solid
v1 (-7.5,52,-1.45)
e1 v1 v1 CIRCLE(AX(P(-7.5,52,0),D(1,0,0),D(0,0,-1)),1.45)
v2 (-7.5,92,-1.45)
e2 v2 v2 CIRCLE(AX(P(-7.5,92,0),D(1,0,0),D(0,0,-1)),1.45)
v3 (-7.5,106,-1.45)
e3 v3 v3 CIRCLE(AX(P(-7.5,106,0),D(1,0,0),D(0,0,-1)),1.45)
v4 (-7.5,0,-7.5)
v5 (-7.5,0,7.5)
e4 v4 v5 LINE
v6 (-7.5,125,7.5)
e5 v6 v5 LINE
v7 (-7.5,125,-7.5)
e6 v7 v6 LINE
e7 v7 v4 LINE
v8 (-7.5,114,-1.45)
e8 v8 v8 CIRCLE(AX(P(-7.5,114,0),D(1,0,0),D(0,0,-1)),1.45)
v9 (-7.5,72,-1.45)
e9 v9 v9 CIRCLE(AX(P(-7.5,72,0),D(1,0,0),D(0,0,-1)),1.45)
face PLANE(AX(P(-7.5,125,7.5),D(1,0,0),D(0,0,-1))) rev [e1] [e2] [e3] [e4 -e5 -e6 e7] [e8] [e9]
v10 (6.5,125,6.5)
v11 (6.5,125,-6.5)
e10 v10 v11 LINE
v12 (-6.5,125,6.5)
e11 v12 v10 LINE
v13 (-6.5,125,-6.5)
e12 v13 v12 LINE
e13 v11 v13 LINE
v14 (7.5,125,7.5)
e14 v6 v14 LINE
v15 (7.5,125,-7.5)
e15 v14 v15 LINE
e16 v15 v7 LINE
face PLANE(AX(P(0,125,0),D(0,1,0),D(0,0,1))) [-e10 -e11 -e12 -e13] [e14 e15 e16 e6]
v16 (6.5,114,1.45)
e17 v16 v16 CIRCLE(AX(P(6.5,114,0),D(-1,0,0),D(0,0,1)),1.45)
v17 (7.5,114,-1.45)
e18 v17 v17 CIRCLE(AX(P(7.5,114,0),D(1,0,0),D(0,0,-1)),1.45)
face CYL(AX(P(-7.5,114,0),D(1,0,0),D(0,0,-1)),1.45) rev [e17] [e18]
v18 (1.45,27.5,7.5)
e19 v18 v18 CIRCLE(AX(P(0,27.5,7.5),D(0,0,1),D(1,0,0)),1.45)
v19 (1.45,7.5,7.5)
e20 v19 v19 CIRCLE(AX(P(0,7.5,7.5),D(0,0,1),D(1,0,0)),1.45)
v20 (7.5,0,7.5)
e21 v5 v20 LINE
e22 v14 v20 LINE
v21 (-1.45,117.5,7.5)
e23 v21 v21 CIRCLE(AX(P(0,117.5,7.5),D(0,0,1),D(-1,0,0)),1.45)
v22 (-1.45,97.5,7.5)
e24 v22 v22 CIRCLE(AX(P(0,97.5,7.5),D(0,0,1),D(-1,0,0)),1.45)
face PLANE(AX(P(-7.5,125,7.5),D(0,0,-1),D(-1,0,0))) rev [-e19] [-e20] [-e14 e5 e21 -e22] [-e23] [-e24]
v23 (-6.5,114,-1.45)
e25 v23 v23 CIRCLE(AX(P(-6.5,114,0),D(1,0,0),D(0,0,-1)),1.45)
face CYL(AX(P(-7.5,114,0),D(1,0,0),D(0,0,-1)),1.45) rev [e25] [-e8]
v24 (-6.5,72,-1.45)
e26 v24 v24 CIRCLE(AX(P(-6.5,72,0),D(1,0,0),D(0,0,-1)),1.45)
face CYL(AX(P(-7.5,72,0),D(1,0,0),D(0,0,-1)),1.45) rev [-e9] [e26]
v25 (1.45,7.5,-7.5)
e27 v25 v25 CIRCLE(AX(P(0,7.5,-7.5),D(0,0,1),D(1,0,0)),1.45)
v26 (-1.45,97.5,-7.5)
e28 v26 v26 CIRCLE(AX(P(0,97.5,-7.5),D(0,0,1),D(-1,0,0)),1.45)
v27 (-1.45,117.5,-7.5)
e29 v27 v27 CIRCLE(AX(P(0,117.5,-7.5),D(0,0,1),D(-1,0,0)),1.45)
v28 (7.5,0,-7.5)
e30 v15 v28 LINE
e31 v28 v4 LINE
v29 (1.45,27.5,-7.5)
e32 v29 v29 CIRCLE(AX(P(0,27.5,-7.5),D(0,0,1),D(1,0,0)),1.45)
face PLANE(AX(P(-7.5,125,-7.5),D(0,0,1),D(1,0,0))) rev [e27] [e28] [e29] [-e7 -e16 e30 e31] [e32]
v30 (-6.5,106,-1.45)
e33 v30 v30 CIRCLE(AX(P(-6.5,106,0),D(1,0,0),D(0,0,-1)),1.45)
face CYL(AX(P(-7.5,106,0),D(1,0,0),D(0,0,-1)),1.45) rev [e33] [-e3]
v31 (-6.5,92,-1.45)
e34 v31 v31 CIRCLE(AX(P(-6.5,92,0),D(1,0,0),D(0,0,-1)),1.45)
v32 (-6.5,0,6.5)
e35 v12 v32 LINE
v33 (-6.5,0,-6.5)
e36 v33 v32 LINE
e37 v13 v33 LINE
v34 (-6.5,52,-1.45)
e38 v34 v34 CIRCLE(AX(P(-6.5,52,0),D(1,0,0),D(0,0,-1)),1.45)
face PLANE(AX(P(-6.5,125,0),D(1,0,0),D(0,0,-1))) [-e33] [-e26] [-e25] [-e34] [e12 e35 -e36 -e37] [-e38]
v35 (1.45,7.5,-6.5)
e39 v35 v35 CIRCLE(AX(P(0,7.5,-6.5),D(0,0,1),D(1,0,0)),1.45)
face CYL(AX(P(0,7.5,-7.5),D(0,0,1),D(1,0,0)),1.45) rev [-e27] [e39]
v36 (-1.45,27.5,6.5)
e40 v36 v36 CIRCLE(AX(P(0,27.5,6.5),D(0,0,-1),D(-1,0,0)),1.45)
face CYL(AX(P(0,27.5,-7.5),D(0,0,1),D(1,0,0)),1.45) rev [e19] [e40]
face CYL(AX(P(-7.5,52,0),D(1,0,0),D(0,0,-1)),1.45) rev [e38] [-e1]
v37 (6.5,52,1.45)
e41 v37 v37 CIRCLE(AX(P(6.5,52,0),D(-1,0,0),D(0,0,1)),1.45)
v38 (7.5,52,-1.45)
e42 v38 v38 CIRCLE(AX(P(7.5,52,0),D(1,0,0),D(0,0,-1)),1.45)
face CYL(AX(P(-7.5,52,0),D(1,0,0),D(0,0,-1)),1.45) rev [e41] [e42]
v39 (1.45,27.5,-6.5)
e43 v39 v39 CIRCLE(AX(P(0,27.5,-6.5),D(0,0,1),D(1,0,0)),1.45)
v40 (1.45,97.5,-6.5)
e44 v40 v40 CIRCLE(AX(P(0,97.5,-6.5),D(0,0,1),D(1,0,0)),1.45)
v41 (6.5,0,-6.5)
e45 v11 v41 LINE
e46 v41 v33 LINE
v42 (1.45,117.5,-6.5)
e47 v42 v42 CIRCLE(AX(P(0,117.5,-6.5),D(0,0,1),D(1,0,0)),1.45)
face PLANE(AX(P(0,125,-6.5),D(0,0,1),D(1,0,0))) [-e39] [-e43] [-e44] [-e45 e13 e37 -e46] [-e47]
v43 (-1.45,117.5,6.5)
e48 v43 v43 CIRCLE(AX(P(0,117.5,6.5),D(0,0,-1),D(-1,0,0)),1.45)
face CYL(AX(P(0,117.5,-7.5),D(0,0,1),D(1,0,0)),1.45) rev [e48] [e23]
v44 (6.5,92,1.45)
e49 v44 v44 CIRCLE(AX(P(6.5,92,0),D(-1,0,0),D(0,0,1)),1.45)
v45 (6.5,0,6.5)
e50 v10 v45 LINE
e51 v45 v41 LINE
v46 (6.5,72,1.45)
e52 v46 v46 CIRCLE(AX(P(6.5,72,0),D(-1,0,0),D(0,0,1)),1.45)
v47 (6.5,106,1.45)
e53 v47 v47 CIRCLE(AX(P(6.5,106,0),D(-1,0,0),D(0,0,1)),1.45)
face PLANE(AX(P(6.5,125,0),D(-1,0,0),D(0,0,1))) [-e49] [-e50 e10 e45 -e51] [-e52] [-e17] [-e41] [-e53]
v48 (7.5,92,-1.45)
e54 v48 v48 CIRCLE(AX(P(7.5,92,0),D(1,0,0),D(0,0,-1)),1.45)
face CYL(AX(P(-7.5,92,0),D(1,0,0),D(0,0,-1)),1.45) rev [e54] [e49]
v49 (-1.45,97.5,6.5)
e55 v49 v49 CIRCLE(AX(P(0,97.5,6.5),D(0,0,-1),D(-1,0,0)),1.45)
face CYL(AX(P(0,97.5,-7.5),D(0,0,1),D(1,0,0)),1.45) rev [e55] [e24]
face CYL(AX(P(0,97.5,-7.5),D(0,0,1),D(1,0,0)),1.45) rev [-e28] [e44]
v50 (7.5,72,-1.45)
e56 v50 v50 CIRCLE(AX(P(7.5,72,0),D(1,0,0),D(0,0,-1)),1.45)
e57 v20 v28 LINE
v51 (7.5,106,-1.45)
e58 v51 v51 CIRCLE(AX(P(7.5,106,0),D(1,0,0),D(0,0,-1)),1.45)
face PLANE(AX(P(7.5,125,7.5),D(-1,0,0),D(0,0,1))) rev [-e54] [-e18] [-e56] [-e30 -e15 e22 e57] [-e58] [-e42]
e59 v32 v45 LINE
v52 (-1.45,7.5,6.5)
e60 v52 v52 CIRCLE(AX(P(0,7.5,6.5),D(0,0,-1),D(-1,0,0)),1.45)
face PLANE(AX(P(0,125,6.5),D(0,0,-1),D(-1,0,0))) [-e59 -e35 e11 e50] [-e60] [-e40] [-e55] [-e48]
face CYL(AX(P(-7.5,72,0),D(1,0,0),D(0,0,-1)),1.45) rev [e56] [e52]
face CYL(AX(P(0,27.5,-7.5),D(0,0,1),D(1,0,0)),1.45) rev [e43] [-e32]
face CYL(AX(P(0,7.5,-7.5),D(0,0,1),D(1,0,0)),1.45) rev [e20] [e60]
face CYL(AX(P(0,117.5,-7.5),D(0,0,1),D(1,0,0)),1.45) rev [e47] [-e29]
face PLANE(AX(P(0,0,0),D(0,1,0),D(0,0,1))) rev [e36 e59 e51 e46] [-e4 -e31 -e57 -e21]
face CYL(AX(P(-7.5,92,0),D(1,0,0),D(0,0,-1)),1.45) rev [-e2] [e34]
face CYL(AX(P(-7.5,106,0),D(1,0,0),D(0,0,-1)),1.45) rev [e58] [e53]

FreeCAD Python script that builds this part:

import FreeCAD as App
import Part
import Sketcher
from FreeCAD import Vector
Q = App.Units.Quantity


def add_polygon(sketch, points):
    """Adds a closed chain of lines whose ends are joined by coincident constraints."""
    first, n = sketch.GeometryCount, len(points)
    for a, b in zip(points, points[1:] + points[:1]):
        sketch.addGeometry(Part.LineSegment(App.Vector(*a, 0), App.Vector(*b, 0)), False)
    for i in range(n):
        sketch.addConstraint(Sketcher.Constraint("Coincident", first + i, 2, first + (i + 1) % n, 1))

doc = App.newDocument("Part")
body = doc.addObject("PartDesign::Body", "Body")

# Sketch on XZ plane
sketch1 = body.newObject("Sketcher::SketchObject", "Sketch")
sketch1.AttachmentSupport = (doc.getObject("XZ_Plane"), [""])
sketch1.MapMode = "FlatFace"
add_polygon(sketch1, [(-8, -8), (-8, 8), (8, 8), (8, -8)])  # lines 0-3
add_polygon(sketch1, [(6, 6), (-6, 6), (-6, -6), (6, -6)])  # lines 4-7
sketch1.addConstraint([
    Sketcher.Constraint("Vertical", 0),
    Sketcher.Constraint("Horizontal", 1),
    Sketcher.Constraint("Vertical", 2),
    Sketcher.Constraint("Horizontal", 3),
    Sketcher.Constraint("Horizontal", 4),
    Sketcher.Constraint("Vertical", 5),
    Sketcher.Constraint("Horizontal", 6),
    Sketcher.Constraint("Vertical", 7),
    Sketcher.Constraint("Symmetric", 0, 2, 2, 2, -1, 1),
    Sketcher.Constraint("Symmetric", 4, 2, 6, 2, -1, 1),
    Sketcher.Constraint("Equal", 3, 0),
    Sketcher.Constraint("Equal", 6, 5),
    Sketcher.Constraint("DistanceX", 1, 1, 1, 2, Q("15 mm")),
    Sketcher.Constraint("DistanceX", 4, 2, 4, 1, Q("13 mm")),
])
pad1 = body.newObject("PartDesign::Pad", "Pad")
pad1.Profile = sketch1
pad1.Length = 125
pad1.Reversed = True

# Sketch on XY plane
sketch2 = body.newObject("Sketcher::SketchObject", "Sketch001")
sketch2.AttachmentSupport = (doc.getObject("XY_Plane"), [""])
sketch2.MapMode = "FlatFace"
sketch2.AttachmentOffset = App.Placement(Vector(0, 0, 7.5), App.Rotation())
sketch2.addGeometry([
    Part.Circle(Vector(0, 7.5, 0), Vector(0, 0, 1), 1.4),
    Part.Circle(Vector(0, 27.5, 0), Vector(0, 0, 1), 1.4),
    Part.Circle(Vector(0, 97.5, 0), Vector(0, 0, 1), 1.4),
    Part.Circle(Vector(0, 117.5, 0), Vector(0, 0, 1), 1.4),
], False)
sketch2.addConstraint([
    Sketcher.Constraint("Equal", 0, 1),
    Sketcher.Constraint("Equal", 1, 2),
    Sketcher.Constraint("Equal", 2, 3),
    Sketcher.Constraint("PointOnObject", 0, 3, -2),
    Sketcher.Constraint("PointOnObject", 1, 3, -2),
    Sketcher.Constraint("PointOnObject", 2, 3, -2),
    Sketcher.Constraint("PointOnObject", 3, 3, -2),
    Sketcher.Constraint("Diameter", 0, Q("2.9 mm")),
    Sketcher.Constraint("DistanceY", 0, 3, 1, 3, Q("20 mm")),
    Sketcher.Constraint("DistanceY", 1, 3, 2, 3, Q("70 mm")),
    Sketcher.Constraint("DistanceY", 2, 3, 3, 3, Q("20 mm")),
    Sketcher.Constraint("DistanceY", -1, 1, 0, 3, Q("7.5 mm")),
])
pocket1 = body.newObject("PartDesign::Pocket", "Pocket")
pocket1.Profile = sketch2
pocket1.Type = "ThroughAll"

# Sketch on YZ plane
sketch3 = body.newObject("Sketcher::SketchObject", "Sketch002")
sketch3.AttachmentSupport = (doc.getObject("YZ_Plane"), [""])
sketch3.MapMode = "FlatFace"
sketch3.AttachmentOffset = App.Placement(Vector(0, 0, 7.5), App.Rotation())
sketch3.addGeometry([
    Part.Circle(Vector(72, 0, 0), Vector(0, 0, 1), 1.4),  # 0
    Part.Circle(Vector(92, 0, 0), Vector(0, 0, 1), 1.4),  # 1
    Part.Circle(Vector(52, 0, 0), Vector(0, 0, 1), 1.4),  # 2
    Part.Circle(Vector(114, 0, 0), Vector(0, 0, 1), 1.4),  # 3
    Part.Circle(Vector(106, 0, 0), Vector(0, 0, 1), 1.4),  # 4
], False)
sketch3.addConstraint([
    Sketcher.Constraint("Equal", 0, 1),
    Sketcher.Constraint("Equal", 1, 2),
    Sketcher.Constraint("Equal", 2, 3),
    Sketcher.Constraint("Equal", 3, 4),
    Sketcher.Constraint("PointOnObject", 0, 3, -1),
    Sketcher.Constraint("PointOnObject", 1, 3, -1),
    Sketcher.Constraint("PointOnObject", 2, 3, -1),
    Sketcher.Constraint("PointOnObject", 3, 3, -1),
    Sketcher.Constraint("PointOnObject", 4, 3, -1),
    Sketcher.Constraint("Diameter", 0, Q("2.9 mm")),
    Sketcher.Constraint("DistanceX", -1, 1, 0, 3, Q("72 mm")),
    Sketcher.Constraint("DistanceX", -1, 1, 1, 3, Q("92 mm")),
    Sketcher.Constraint("DistanceX", -1, 1, 2, 3, Q("52 mm")),
    Sketcher.Constraint("DistanceX", -1, 1, 3, 3, Q("114 mm")),
    Sketcher.Constraint("DistanceX", -1, 1, 4, 3, Q("106 mm")),
])
pocket2 = body.newObject("PartDesign::Pocket", "Pocket001")
pocket2.Profile = sketch3
pocket2.Type = "ThroughAll"

doc.recompute()
